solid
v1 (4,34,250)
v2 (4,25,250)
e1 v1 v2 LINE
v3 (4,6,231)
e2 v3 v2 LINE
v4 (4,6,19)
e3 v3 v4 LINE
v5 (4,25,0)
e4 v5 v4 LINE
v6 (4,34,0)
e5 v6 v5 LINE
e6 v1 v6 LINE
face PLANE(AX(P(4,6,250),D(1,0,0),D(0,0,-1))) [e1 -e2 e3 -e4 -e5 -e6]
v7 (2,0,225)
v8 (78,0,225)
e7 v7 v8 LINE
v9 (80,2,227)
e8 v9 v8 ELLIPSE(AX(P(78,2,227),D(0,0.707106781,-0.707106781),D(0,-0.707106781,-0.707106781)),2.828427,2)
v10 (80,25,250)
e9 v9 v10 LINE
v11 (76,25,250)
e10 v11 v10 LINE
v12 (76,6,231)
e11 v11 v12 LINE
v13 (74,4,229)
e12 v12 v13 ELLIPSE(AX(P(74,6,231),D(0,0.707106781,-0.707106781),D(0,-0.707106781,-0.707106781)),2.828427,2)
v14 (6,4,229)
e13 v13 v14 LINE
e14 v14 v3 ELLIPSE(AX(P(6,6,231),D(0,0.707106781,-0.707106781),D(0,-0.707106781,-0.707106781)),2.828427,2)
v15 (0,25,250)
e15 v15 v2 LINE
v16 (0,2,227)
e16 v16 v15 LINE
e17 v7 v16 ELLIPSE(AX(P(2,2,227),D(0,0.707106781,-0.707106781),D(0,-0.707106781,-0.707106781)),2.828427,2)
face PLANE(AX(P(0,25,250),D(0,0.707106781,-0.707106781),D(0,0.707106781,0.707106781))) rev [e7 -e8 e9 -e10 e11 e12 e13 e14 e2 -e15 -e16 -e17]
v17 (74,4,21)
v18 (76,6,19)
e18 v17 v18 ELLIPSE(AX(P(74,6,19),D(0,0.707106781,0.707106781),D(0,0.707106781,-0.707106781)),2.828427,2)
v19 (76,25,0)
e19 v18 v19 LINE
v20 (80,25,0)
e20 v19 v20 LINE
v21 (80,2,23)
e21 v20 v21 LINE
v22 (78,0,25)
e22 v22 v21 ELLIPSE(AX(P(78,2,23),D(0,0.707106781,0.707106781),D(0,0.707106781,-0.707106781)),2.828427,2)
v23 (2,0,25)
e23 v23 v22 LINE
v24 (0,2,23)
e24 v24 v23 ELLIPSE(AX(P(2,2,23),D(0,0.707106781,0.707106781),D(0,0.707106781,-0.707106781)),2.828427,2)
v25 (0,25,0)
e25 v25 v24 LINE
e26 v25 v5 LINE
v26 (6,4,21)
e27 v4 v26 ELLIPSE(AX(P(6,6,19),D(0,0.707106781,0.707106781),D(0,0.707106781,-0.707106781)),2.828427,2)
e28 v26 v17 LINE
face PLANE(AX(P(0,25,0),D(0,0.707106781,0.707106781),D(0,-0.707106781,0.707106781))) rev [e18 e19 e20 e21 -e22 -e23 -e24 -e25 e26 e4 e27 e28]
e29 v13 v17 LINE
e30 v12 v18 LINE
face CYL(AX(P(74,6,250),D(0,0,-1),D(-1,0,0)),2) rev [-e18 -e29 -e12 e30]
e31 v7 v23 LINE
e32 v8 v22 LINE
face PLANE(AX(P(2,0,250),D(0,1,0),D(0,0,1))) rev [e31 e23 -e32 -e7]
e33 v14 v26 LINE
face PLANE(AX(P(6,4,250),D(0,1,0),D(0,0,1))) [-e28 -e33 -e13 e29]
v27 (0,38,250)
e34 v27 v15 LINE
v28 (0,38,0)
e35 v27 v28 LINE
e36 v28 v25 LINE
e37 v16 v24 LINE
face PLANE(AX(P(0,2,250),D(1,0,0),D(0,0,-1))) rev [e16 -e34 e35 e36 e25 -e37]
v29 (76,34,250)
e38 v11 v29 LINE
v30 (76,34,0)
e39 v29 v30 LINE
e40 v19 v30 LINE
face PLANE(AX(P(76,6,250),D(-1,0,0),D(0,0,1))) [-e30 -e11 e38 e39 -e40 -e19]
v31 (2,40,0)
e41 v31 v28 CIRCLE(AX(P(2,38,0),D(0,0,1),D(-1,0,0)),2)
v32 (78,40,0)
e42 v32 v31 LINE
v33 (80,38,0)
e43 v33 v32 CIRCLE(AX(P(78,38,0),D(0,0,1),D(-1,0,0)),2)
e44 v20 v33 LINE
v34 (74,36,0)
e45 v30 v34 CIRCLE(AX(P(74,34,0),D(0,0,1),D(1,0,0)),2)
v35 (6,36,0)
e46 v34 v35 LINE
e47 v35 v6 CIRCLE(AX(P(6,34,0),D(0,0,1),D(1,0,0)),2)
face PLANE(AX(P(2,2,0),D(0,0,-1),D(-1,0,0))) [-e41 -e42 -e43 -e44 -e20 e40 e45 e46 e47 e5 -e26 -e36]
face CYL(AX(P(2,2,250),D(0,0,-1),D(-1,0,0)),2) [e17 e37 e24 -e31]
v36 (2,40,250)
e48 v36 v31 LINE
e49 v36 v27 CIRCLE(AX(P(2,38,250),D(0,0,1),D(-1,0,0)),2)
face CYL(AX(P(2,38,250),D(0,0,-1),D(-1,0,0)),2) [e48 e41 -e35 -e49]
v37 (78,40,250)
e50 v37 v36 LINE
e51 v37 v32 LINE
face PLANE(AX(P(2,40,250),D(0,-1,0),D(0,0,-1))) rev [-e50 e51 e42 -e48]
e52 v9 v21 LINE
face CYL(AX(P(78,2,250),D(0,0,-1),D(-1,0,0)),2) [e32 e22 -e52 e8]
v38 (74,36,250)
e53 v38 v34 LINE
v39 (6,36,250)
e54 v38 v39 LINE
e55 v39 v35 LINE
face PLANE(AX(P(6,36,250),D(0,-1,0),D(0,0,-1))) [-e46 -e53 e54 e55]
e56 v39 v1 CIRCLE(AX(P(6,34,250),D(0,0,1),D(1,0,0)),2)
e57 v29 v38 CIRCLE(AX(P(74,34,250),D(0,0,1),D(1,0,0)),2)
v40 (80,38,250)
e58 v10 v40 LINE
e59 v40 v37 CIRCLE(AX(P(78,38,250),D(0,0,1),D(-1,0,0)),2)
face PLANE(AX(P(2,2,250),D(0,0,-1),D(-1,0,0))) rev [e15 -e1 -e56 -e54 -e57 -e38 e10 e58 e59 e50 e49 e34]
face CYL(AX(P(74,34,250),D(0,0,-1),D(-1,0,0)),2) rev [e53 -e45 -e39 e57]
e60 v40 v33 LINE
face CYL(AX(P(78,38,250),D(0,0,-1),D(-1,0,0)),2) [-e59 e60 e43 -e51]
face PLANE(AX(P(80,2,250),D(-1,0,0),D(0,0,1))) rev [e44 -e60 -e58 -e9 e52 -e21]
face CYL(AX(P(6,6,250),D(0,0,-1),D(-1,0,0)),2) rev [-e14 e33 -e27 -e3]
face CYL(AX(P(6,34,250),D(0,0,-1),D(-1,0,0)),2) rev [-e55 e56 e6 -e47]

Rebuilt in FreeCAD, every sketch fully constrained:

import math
import FreeCAD as App
import Part
import Sketcher
Q = App.Units.Quantity


def add_polygon(sketch, points):
    """Adds a closed chain of lines whose ends are joined by coincident constraints."""
    first, n = sketch.GeometryCount, len(points)
    for a, b in zip(points, points[1:] + points[:1]):
        sketch.addGeometry(Part.LineSegment(App.Vector(*a, 0), App.Vector(*b, 0)), False)
    for i in range(n):
        sketch.addConstraint(Sketcher.Constraint("Coincident", first + i, 2, first + (i + 1) % n, 1))

doc = App.newDocument("Part")
body = doc.addObject("PartDesign::Body", "Body")

sketch1 = body.newObject("Sketcher::SketchObject", "Sketch")
sketch1.AttachmentSupport = (doc.getObject("XY_Plane"), [""])
sketch1.MapMode = "FlatFace"
sketch1.addGeometry(Part.LineSegment(App.Vector(2, 0, 0), App.Vector(78, 0, 0)), False)
sketch1.addGeometry(Part.ArcOfCircle(Part.Circle(App.Vector(78, 2, 0), App.Vector(0, 0, 1), 2), math.radians(-90), math.radians(0)), False)
sketch1.addGeometry(Part.LineSegment(App.Vector(80, 2, 0), App.Vector(80, 38, 0)), False)
sketch1.addGeometry(Part.ArcOfCircle(Part.Circle(App.Vector(78, 38, 0), App.Vector(0, 0, 1), 2), math.radians(0), math.radians(90)), False)
sketch1.addGeometry(Part.LineSegment(App.Vector(78, 40, 0), App.Vector(2, 40, 0)), False)
sketch1.addGeometry(Part.ArcOfCircle(Part.Circle(App.Vector(2, 38, 0), App.Vector(0, 0, 1), 2), math.radians(90), math.radians(180)), False)
sketch1.addGeometry(Part.LineSegment(App.Vector(0, 38, 0), App.Vector(0, 2, 0)), False)
sketch1.addGeometry(Part.ArcOfCircle(Part.Circle(App.Vector(2, 2, 0), App.Vector(0, 0, 1), 2), math.radians(-180), math.radians(-90)), False)
sketch1.addGeometry(Part.LineSegment(App.Vector(74, 4, 0), App.Vector(6, 4, 0)), False)
sketch1.addGeometry(Part.ArcOfCircle(Part.Circle(App.Vector(6, 6, 0), App.Vector(0, 0, 1), 2), math.radians(-180), math.radians(-90)), False)
sketch1.addGeometry(Part.LineSegment(App.Vector(4, 6, 0), App.Vector(4, 34, 0)), False)
sketch1.addGeometry(Part.ArcOfCircle(Part.Circle(App.Vector(6, 34, 0), App.Vector(0, 0, 1), 2), math.radians(90), math.radians(180)), False)
sketch1.addGeometry(Part.LineSegment(App.Vector(6, 36, 0), App.Vector(74, 36, 0)), False)
sketch1.addGeometry(Part.ArcOfCircle(Part.Circle(App.Vector(74, 34, 0), App.Vector(0, 0, 1), 2), math.radians(0), math.radians(90)), False)
sketch1.addGeometry(Part.LineSegment(App.Vector(76, 34, 0), App.Vector(76, 6, 0)), False)
sketch1.addGeometry(Part.ArcOfCircle(Part.Circle(App.Vector(74, 6, 0), App.Vector(0, 0, 1), 2), math.radians(-90), math.radians(0)), False)
sketch1.addConstraint(Sketcher.Constraint("Tangent", 0, 2, 1, 1))
sketch1.addConstraint(Sketcher.Constraint("Tangent", 1, 2, 2, 1))
sketch1.addConstraint(Sketcher.Constraint("Tangent", 2, 2, 3, 1))
sketch1.addConstraint(Sketcher.Constraint("Tangent", 3, 2, 4, 1))
sketch1.addConstraint(Sketcher.Constraint("Tangent", 4, 2, 5, 1))
sketch1.addConstraint(Sketcher.Constraint("Tangent", 5, 2, 6, 1))
sketch1.addConstraint(Sketcher.Constraint("Tangent", 6, 2, 7, 1))
sketch1.addConstraint(Sketcher.Constraint("Tangent", 7, 2, 0, 1))
sketch1.addConstraint(Sketcher.Constraint("Tangent", 8, 2, 9, 2))
sketch1.addConstraint(Sketcher.Constraint("Tangent", 9, 1, 10, 1))
sketch1.addConstraint(Sketcher.Constraint("Tangent", 10, 2, 11, 2))
sketch1.addConstraint(Sketcher.Constraint("Tangent", 11, 1, 12, 1))
sketch1.addConstraint(Sketcher.Constraint("Tangent", 12, 2, 13, 2))
sketch1.addConstraint(Sketcher.Constraint("Tangent", 13, 1, 14, 1))
sketch1.addConstraint(Sketcher.Constraint("Tangent", 14, 2, 15, 2))
sketch1.addConstraint(Sketcher.Constraint("Tangent", 15, 1, 8, 1))
sketch1.addConstraint(Sketcher.Constraint("Horizontal", 0))
sketch1.addConstraint(Sketcher.Constraint("Vertical", 2))
sketch1.addConstraint(Sketcher.Constraint("Horizontal", 4))
sketch1.addConstraint(Sketcher.Constraint("Vertical", 6))
sketch1.addConstraint(Sketcher.Constraint("Horizontal", 8))
sketch1.addConstraint(Sketcher.Constraint("Vertical", 10))
sketch1.addConstraint(Sketcher.Constraint("Horizontal", 12))
sketch1.addConstraint(Sketcher.Constraint("Vertical", 14))
sketch1.addConstraint(Sketcher.Constraint("Equal", 1, 3))
sketch1.addConstraint(Sketcher.Constraint("Equal", 3, 5))
sketch1.addConstraint(Sketcher.Constraint("Equal", 5, 7))
sketch1.addConstraint(Sketcher.Constraint("Equal", 7, 9))
sketch1.addConstraint(Sketcher.Constraint("Equal", 9, 11))
sketch1.addConstraint(Sketcher.Constraint("Equal", 11, 13))
sketch1.addConstraint(Sketcher.Constraint("Equal", 13, 15))
sketch1.addConstraint(Sketcher.Constraint("PointOnObject", 0, 2, -1))
sketch1.addConstraint(Sketcher.Constraint("PointOnObject", 5, 2, -2))
sketch1.addConstraint(Sketcher.Constraint("Radius", 1, Q("2 mm")))
sketch1.addConstraint(Sketcher.Constraint("DistanceX", 0, 1, 0, 2, Q("76 mm")))
sketch1.addConstraint(Sketcher.Constraint("DistanceX", 8, 2, 8, 1, Q("68 mm")))
sketch1.addConstraint(Sketcher.Constraint("DistanceY", 2, 1, 2, 2, Q("36 mm")))
sketch1.addConstraint(Sketcher.Constraint("DistanceY", 10, 1, 10, 2, Q("28 mm")))
sketch1.addConstraint(Sketcher.Constraint("DistanceX", -1, 1, 9, 3, Q("6 mm")))
sketch1.addConstraint(Sketcher.Constraint("DistanceY", -1, 1, 9, 3, Q("6 mm")))
pad1 = body.newObject("PartDesign::Pad", "Pad")
pad1.Profile = sketch1
pad1.Length = 250

sketch2 = body.newObject("Sketcher::SketchObject", "Sketch001")
sketch2.AttachmentSupport = (doc.getObject("YZ_Plane"), [""])
sketch2.MapMode = "FlatFace"
sketch2.AttachmentOffset = App.Placement(App.Vector(0, 0, 80), App.Rotation())
add_polygon(sketch2, [(25, 0), (0, 25), (0, 0)])
add_polygon(sketch2, [(0, 225), (25, 250), (0, 250)])
sketch2.addConstraint(Sketcher.Constraint("Vertical", 1))
sketch2.addConstraint(Sketcher.Constraint("Horizontal", 2))
sketch2.addConstraint(Sketcher.Constraint("Horizontal", 4))
sketch2.addConstraint(Sketcher.Constraint("Vertical", 5))
sketch2.addConstraint(Sketcher.Constraint("Coincident", 1, 2, -1, 1))
sketch2.addConstraint(Sketcher.Constraint("PointOnObject", 4, 2, -2))
sketch2.addConstraint(Sketcher.Constraint("Perpendicular", 0, 3))
sketch2.addConstraint(Sketcher.Constraint("Vertical", 2, 2, 3, 2))
sketch2.addConstraint(Sketcher.Constraint("Equal", 4, 1))
sketch2.addConstraint(Sketcher.Constraint("DistanceX", 2, 1, 2, 2, Q("25 mm")))
sketch2.addConstraint(Sketcher.Constraint("DistanceY", -1, 1, 3, 2, Q("250 mm")))
pocket1 = body.newObject("PartDesign::Pocket", "Pocket")
pocket1.Profile = sketch2
pocket1.Type = "ThroughAll"

doc.recompute()
